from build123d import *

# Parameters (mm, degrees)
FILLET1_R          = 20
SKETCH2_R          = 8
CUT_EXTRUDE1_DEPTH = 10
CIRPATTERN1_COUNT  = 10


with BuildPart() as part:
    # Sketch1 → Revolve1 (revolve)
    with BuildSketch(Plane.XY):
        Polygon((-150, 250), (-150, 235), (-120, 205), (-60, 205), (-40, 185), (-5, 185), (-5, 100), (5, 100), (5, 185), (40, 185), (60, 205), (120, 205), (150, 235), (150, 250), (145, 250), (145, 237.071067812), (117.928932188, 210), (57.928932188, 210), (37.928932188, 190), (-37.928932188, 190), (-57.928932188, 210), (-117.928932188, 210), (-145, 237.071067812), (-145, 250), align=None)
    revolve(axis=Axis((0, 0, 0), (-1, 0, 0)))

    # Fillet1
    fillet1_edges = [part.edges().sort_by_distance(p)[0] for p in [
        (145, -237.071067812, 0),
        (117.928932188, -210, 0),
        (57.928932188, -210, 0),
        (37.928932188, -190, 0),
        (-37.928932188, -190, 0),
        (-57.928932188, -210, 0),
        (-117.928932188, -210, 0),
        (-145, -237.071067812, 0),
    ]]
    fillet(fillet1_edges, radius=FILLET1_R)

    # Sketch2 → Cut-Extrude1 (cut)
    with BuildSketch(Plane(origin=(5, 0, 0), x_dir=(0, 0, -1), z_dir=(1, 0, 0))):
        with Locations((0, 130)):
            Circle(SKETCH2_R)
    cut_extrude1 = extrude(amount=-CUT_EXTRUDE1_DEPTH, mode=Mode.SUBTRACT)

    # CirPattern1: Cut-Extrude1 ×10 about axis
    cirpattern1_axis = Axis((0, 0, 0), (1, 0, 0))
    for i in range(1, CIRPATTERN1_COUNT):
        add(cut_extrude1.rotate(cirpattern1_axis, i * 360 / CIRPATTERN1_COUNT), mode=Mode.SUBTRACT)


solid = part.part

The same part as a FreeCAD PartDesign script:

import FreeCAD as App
import Part
import Sketcher

V = App.Vector


def edges_at(feature, points):
    """Names of the edges that pass closest to the given points."""
    edges = feature.Shape.Edges
    near = lambda p: min(range(len(edges)), key=lambda i: edges[i].distToShape(Part.Vertex(*p))[0])
    return sorted({f"Edge{near(p) + 1}" for p in points})


def add_polygon(sketch, points):
    """Adds a closed chain of lines whose ends are joined by coincident constraints."""
    first, n = sketch.GeometryCount, len(points)
    for a, b in zip(points, points[1:] + points[:1]):
        sketch.addGeometry(Part.LineSegment(App.Vector(*a, 0), App.Vector(*b, 0)), False)
    for i in range(n):
        sketch.addConstraint(Sketcher.Constraint("Coincident", first + i, 2, first + (i + 1) % n, 1))

doc = App.newDocument("Part")
body = doc.addObject("PartDesign::Body", "Body")

# Sketch on XY plane
sketch1 = body.newObject("Sketcher::SketchObject", "Sketch")
sketch1.AttachmentSupport = (doc.getObject("XY_Plane"), [""])
sketch1.MapMode = "FlatFace"
add_polygon(sketch1, [(-150, 250), (-150, 235), (-120, 205), (-60, 205), (-40, 185), (-5, 185), (-5, 100), (5, 100), (5, 185), (40, 185), (60, 205), (120, 205), (150, 235), (150, 250), (145, 250), (145, 237), (118, 210), (58, 210), (38, 190), (-38, 190), (-58, 210), (-118, 210), (-145, 237), (-145, 250)])  # lines 0-23
sketch1.addConstraint([
    Sketcher.Constraint("Vertical", 0),
    Sketcher.Constraint("Horizontal", 2),
    Sketcher.Constraint("Horizontal", 4),
    Sketcher.Constraint("Vertical", 5),
    Sketcher.Constraint("Horizontal", 6),
    Sketcher.Constraint("Vertical", 7),
    Sketcher.Constraint("Horizontal", 8),
    Sketcher.Constraint("Horizontal", 10),
    Sketcher.Constraint("Vertical", 12),
    Sketcher.Constraint("Horizontal", 13),
    Sketcher.Constraint("Vertical", 14),
    Sketcher.Constraint("Horizontal", 16),
    Sketcher.Constraint("Horizontal", 18),
    Sketcher.Constraint("Horizontal", 20),
    Sketcher.Constraint("Vertical", 22),
    Sketcher.Constraint("Horizontal", 23),
    Sketcher.Constraint("Symmetric", 4, 2, 7, 2, -2),
    Sketcher.Constraint("Symmetric", 2, 2, 9, 2, -2),
    Sketcher.Constraint("Symmetric", 0, 2, 11, 2, -2),
    Sketcher.Constraint("Symmetric", 16, 2, 19, 2, -2),
    Sketcher.Constraint("Symmetric", 14, 2, 21, 2, -2),
    Sketcher.Constraint("Parallel", 1, 3),
    Sketcher.Constraint("Perpendicular", 3, 9),
    Sketcher.Constraint("Parallel", 9, 11),
    Sketcher.Constraint("Parallel", 11, 15),
    Sketcher.Constraint("Parallel", 15, 17),
    Sketcher.Constraint("Perpendicular", 17, 19),
    Sketcher.Constraint("Parallel", 19, 21),
    Sketcher.Constraint("Horizontal", 13, 2, 22, 2),
    Sketcher.Constraint("Equal", 4, 8),
    Sketcher.Constraint("Equal", 10, 16),
    Sketcher.Constraint("Equal", 9, 17),
    Sketcher.Constraint("DistanceX", 2, 1, 2, 2, 60.0),
    Sketcher.Constraint("DistanceX", 4, 1, 4, 2, 35.0),
    Sketcher.Constraint("DistanceX", 6, 1, 6, 2, 10.0),
    Sketcher.Constraint("DistanceX", 13, 2, 13, 1, 5.0),
    Sketcher.Constraint("DistanceY", 0, 2, 0, 1, 15.0),
    Sketcher.Constraint("DistanceY", 5, 2, 5, 1, 85.0),
    Sketcher.Constraint("DistanceX", 0, 2, -1, 1, 150.0),
    Sketcher.Constraint("DistanceY", -1, 1, 0, 2, 235.0),
    Sketcher.Constraint("DistanceX", 1, 2, -1, 1, 120.0),
    Sketcher.Constraint("DistanceY", -1, 1, 15, 2, 210.0),
    Sketcher.Constraint("Distance", 15, 38.284271),
])
revolution = body.newObject("PartDesign::Revolution", "Revolution")
revolution.Profile = sketch1
revolution.ReferenceAxis = (sketch1, ["H_Axis"])
revolution.Angle = 360
doc.recompute()

fillet = body.newObject("PartDesign::Fillet", "Fillet")
fillet.Base = (revolution, edges_at(revolution, [
    (145, -237.071, 0),
    (117.929, -210, 0),
    (57.929, -210, 0),
    (37.929, -190, 0),
    (-37.929, -190, 0),
    (-57.929, -210, 0),
    (-117.929, -210, 0),
    (-145, -237.071, 0),
]))
fillet.Radius = 20

# Sketch on YZ plane
sketch2 = body.newObject("Sketcher::SketchObject", "Sketch001")
sketch2.AttachmentSupport = (doc.getObject("YZ_Plane"), [""])
sketch2.MapMode = "FlatFace"
sketch2.AttachmentOffset = App.Placement(V(0, 0, 5), App.Rotation())
sketch2.addGeometry(Part.Circle(V(130, 0, 0), V(0, 0, 1), 8), False)
sketch2.addConstraint([
    Sketcher.Constraint("PointOnObject", 0, 3, -1),
    Sketcher.Constraint("Diameter", 0, 16.0),
    Sketcher.Constraint("DistanceX", -1, 1, 0, 3, 130.0),
])
pocket1 = body.newObject("PartDesign::Pocket", "Pocket")
pocket1.Profile = sketch2
pocket1.Length = 10
doc.recompute()

polarpattern = body.newObject("PartDesign::PolarPattern", "PolarPattern")
polarpattern.Originals = [pocket1]
polarpattern.Axis = (doc.getObject("X_Axis"), [""])
polarpattern.Angle = 360
polarpattern.Occurrences = 10
body.Tip = polarpattern

doc.recompute()
